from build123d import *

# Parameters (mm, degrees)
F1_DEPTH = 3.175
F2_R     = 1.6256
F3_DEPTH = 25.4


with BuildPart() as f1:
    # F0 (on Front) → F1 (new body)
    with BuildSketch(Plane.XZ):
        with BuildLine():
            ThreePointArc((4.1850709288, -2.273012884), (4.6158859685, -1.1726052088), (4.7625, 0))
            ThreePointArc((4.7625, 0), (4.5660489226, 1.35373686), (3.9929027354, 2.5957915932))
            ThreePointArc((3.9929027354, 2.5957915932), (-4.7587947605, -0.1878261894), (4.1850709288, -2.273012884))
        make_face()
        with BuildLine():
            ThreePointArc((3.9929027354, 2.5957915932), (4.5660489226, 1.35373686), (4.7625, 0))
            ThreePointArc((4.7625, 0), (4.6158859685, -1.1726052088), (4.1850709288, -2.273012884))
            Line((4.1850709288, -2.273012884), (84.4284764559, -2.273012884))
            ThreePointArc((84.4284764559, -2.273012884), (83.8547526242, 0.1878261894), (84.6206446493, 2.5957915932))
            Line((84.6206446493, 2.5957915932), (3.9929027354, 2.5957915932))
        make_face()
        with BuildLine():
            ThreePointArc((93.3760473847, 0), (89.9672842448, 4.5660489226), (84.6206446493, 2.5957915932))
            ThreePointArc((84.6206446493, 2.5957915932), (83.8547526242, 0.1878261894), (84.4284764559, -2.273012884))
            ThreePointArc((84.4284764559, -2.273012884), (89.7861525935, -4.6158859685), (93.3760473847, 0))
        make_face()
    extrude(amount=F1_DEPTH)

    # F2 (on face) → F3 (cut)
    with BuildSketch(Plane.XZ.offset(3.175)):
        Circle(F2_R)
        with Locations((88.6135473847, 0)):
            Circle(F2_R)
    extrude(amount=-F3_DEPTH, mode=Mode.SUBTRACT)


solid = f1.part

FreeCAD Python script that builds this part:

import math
import FreeCAD as App
import Part
import Sketcher
from FreeCAD import Vector
Q = App.Units.Quantity

doc = App.newDocument("Part")
body = doc.addObject("PartDesign::Body", "Body")

# Sketch on XZ plane
sketch1 = doc.addObject("Sketcher::SketchObject", "Sketch")
body.addObject(sketch1)
sketch1.AttachmentSupport = (doc.XZ_Plane, [""])
sketch1.MapMode = "FlatFace"
sketch1.addGeometry(Part.ArcOfCircle(Part.Circle(Vector(0, 0, 0), Vector(0, 0, 1), 4.8), math.radians(33), math.radians(331)), False)
sketch1.addGeometry(Part.LineSegment(Vector(4.2, -2.3, 0), Vector(84.4, -2.3, 0)), False)
sketch1.addGeometry(Part.ArcOfCircle(Part.Circle(Vector(88.6, 0, 0), Vector(0, 0, 1), 4.8), math.radians(-151), math.radians(147)), False)
sketch1.addGeometry(Part.LineSegment(Vector(84.6, 2.6, 0), Vector(4, 2.6, 0)), False)
sketch1.addConstraint(Sketcher.Constraint("Coincident", 0, 2, 1, 1))
sketch1.addConstraint(Sketcher.Constraint("Coincident", 1, 2, 2, 1))
sketch1.addConstraint(Sketcher.Constraint("Coincident", 2, 2, 3, 1))
sketch1.addConstraint(Sketcher.Constraint("Coincident", 3, 2, 0, 1))
sketch1.addConstraint(Sketcher.Constraint("Horizontal", 1))
sketch1.addConstraint(Sketcher.Constraint("Horizontal", 3))
sketch1.addConstraint(Sketcher.Constraint("Coincident", 0, 3, -1, 1))
sketch1.addConstraint(Sketcher.Constraint("Equal", 0, 2))
sketch1.addConstraint(Sketcher.Constraint("PointOnObject", 2, 3, -1))
sketch1.addConstraint(Sketcher.Constraint("Radius", 0, Q("0.1875 in")))
sketch1.addConstraint(Sketcher.Constraint("DistanceX", 3, 2, 3, 1, 80.627742))
sketch1.addConstraint(Sketcher.Constraint("DistanceX", 1, 1, 1, 2, 80.243406))
sketch1.addConstraint(Sketcher.Constraint("DistanceX", -1, 1, 0, 2, 4.185071))
pad1 = doc.addObject("PartDesign::Pad", "Pad")
body.addObject(pad1)
pad1.Profile = sketch1
pad1.Length = Q("0.125 in")

# Sketch on XZ plane
sketch2 = doc.addObject("Sketcher::SketchObject", "Sketch001")
body.addObject(sketch2)
sketch2.AttachmentSupport = (doc.XZ_Plane, [""])
sketch2.MapMode = "FlatFace"
sketch2.AttachmentOffset = App.Placement(Vector(0, 0, 0.125 * 25.4), App.Rotation())
sketch2.addGeometry(Part.Circle(Vector(0, 0, 0), Vector(0, 0, 1), 1.6), False)
sketch2.addGeometry(Part.Circle(Vector(88.6, 0, 0), Vector(0, 0, 1), 1.6), False)
sketch2.addConstraint(Sketcher.Constraint("Coincident", 0, 3, -1, 1))
sketch2.addConstraint(Sketcher.Constraint("Equal", 0, 1))
sketch2.addConstraint(Sketcher.Constraint("PointOnObject", 1, 3, -1))
sketch2.addConstraint(Sketcher.Constraint("Diameter", 0, Q("0.128 in")))
sketch2.addConstraint(Sketcher.Constraint("DistanceX", -1, 1, 1, 3, 88.613547))
pocket1 = doc.addObject("PartDesign::Pocket", "Pocket")
body.addObject(pocket1)
pocket1.Profile = sketch2
pocket1.Length = Q("1 in")

doc.recompute()
